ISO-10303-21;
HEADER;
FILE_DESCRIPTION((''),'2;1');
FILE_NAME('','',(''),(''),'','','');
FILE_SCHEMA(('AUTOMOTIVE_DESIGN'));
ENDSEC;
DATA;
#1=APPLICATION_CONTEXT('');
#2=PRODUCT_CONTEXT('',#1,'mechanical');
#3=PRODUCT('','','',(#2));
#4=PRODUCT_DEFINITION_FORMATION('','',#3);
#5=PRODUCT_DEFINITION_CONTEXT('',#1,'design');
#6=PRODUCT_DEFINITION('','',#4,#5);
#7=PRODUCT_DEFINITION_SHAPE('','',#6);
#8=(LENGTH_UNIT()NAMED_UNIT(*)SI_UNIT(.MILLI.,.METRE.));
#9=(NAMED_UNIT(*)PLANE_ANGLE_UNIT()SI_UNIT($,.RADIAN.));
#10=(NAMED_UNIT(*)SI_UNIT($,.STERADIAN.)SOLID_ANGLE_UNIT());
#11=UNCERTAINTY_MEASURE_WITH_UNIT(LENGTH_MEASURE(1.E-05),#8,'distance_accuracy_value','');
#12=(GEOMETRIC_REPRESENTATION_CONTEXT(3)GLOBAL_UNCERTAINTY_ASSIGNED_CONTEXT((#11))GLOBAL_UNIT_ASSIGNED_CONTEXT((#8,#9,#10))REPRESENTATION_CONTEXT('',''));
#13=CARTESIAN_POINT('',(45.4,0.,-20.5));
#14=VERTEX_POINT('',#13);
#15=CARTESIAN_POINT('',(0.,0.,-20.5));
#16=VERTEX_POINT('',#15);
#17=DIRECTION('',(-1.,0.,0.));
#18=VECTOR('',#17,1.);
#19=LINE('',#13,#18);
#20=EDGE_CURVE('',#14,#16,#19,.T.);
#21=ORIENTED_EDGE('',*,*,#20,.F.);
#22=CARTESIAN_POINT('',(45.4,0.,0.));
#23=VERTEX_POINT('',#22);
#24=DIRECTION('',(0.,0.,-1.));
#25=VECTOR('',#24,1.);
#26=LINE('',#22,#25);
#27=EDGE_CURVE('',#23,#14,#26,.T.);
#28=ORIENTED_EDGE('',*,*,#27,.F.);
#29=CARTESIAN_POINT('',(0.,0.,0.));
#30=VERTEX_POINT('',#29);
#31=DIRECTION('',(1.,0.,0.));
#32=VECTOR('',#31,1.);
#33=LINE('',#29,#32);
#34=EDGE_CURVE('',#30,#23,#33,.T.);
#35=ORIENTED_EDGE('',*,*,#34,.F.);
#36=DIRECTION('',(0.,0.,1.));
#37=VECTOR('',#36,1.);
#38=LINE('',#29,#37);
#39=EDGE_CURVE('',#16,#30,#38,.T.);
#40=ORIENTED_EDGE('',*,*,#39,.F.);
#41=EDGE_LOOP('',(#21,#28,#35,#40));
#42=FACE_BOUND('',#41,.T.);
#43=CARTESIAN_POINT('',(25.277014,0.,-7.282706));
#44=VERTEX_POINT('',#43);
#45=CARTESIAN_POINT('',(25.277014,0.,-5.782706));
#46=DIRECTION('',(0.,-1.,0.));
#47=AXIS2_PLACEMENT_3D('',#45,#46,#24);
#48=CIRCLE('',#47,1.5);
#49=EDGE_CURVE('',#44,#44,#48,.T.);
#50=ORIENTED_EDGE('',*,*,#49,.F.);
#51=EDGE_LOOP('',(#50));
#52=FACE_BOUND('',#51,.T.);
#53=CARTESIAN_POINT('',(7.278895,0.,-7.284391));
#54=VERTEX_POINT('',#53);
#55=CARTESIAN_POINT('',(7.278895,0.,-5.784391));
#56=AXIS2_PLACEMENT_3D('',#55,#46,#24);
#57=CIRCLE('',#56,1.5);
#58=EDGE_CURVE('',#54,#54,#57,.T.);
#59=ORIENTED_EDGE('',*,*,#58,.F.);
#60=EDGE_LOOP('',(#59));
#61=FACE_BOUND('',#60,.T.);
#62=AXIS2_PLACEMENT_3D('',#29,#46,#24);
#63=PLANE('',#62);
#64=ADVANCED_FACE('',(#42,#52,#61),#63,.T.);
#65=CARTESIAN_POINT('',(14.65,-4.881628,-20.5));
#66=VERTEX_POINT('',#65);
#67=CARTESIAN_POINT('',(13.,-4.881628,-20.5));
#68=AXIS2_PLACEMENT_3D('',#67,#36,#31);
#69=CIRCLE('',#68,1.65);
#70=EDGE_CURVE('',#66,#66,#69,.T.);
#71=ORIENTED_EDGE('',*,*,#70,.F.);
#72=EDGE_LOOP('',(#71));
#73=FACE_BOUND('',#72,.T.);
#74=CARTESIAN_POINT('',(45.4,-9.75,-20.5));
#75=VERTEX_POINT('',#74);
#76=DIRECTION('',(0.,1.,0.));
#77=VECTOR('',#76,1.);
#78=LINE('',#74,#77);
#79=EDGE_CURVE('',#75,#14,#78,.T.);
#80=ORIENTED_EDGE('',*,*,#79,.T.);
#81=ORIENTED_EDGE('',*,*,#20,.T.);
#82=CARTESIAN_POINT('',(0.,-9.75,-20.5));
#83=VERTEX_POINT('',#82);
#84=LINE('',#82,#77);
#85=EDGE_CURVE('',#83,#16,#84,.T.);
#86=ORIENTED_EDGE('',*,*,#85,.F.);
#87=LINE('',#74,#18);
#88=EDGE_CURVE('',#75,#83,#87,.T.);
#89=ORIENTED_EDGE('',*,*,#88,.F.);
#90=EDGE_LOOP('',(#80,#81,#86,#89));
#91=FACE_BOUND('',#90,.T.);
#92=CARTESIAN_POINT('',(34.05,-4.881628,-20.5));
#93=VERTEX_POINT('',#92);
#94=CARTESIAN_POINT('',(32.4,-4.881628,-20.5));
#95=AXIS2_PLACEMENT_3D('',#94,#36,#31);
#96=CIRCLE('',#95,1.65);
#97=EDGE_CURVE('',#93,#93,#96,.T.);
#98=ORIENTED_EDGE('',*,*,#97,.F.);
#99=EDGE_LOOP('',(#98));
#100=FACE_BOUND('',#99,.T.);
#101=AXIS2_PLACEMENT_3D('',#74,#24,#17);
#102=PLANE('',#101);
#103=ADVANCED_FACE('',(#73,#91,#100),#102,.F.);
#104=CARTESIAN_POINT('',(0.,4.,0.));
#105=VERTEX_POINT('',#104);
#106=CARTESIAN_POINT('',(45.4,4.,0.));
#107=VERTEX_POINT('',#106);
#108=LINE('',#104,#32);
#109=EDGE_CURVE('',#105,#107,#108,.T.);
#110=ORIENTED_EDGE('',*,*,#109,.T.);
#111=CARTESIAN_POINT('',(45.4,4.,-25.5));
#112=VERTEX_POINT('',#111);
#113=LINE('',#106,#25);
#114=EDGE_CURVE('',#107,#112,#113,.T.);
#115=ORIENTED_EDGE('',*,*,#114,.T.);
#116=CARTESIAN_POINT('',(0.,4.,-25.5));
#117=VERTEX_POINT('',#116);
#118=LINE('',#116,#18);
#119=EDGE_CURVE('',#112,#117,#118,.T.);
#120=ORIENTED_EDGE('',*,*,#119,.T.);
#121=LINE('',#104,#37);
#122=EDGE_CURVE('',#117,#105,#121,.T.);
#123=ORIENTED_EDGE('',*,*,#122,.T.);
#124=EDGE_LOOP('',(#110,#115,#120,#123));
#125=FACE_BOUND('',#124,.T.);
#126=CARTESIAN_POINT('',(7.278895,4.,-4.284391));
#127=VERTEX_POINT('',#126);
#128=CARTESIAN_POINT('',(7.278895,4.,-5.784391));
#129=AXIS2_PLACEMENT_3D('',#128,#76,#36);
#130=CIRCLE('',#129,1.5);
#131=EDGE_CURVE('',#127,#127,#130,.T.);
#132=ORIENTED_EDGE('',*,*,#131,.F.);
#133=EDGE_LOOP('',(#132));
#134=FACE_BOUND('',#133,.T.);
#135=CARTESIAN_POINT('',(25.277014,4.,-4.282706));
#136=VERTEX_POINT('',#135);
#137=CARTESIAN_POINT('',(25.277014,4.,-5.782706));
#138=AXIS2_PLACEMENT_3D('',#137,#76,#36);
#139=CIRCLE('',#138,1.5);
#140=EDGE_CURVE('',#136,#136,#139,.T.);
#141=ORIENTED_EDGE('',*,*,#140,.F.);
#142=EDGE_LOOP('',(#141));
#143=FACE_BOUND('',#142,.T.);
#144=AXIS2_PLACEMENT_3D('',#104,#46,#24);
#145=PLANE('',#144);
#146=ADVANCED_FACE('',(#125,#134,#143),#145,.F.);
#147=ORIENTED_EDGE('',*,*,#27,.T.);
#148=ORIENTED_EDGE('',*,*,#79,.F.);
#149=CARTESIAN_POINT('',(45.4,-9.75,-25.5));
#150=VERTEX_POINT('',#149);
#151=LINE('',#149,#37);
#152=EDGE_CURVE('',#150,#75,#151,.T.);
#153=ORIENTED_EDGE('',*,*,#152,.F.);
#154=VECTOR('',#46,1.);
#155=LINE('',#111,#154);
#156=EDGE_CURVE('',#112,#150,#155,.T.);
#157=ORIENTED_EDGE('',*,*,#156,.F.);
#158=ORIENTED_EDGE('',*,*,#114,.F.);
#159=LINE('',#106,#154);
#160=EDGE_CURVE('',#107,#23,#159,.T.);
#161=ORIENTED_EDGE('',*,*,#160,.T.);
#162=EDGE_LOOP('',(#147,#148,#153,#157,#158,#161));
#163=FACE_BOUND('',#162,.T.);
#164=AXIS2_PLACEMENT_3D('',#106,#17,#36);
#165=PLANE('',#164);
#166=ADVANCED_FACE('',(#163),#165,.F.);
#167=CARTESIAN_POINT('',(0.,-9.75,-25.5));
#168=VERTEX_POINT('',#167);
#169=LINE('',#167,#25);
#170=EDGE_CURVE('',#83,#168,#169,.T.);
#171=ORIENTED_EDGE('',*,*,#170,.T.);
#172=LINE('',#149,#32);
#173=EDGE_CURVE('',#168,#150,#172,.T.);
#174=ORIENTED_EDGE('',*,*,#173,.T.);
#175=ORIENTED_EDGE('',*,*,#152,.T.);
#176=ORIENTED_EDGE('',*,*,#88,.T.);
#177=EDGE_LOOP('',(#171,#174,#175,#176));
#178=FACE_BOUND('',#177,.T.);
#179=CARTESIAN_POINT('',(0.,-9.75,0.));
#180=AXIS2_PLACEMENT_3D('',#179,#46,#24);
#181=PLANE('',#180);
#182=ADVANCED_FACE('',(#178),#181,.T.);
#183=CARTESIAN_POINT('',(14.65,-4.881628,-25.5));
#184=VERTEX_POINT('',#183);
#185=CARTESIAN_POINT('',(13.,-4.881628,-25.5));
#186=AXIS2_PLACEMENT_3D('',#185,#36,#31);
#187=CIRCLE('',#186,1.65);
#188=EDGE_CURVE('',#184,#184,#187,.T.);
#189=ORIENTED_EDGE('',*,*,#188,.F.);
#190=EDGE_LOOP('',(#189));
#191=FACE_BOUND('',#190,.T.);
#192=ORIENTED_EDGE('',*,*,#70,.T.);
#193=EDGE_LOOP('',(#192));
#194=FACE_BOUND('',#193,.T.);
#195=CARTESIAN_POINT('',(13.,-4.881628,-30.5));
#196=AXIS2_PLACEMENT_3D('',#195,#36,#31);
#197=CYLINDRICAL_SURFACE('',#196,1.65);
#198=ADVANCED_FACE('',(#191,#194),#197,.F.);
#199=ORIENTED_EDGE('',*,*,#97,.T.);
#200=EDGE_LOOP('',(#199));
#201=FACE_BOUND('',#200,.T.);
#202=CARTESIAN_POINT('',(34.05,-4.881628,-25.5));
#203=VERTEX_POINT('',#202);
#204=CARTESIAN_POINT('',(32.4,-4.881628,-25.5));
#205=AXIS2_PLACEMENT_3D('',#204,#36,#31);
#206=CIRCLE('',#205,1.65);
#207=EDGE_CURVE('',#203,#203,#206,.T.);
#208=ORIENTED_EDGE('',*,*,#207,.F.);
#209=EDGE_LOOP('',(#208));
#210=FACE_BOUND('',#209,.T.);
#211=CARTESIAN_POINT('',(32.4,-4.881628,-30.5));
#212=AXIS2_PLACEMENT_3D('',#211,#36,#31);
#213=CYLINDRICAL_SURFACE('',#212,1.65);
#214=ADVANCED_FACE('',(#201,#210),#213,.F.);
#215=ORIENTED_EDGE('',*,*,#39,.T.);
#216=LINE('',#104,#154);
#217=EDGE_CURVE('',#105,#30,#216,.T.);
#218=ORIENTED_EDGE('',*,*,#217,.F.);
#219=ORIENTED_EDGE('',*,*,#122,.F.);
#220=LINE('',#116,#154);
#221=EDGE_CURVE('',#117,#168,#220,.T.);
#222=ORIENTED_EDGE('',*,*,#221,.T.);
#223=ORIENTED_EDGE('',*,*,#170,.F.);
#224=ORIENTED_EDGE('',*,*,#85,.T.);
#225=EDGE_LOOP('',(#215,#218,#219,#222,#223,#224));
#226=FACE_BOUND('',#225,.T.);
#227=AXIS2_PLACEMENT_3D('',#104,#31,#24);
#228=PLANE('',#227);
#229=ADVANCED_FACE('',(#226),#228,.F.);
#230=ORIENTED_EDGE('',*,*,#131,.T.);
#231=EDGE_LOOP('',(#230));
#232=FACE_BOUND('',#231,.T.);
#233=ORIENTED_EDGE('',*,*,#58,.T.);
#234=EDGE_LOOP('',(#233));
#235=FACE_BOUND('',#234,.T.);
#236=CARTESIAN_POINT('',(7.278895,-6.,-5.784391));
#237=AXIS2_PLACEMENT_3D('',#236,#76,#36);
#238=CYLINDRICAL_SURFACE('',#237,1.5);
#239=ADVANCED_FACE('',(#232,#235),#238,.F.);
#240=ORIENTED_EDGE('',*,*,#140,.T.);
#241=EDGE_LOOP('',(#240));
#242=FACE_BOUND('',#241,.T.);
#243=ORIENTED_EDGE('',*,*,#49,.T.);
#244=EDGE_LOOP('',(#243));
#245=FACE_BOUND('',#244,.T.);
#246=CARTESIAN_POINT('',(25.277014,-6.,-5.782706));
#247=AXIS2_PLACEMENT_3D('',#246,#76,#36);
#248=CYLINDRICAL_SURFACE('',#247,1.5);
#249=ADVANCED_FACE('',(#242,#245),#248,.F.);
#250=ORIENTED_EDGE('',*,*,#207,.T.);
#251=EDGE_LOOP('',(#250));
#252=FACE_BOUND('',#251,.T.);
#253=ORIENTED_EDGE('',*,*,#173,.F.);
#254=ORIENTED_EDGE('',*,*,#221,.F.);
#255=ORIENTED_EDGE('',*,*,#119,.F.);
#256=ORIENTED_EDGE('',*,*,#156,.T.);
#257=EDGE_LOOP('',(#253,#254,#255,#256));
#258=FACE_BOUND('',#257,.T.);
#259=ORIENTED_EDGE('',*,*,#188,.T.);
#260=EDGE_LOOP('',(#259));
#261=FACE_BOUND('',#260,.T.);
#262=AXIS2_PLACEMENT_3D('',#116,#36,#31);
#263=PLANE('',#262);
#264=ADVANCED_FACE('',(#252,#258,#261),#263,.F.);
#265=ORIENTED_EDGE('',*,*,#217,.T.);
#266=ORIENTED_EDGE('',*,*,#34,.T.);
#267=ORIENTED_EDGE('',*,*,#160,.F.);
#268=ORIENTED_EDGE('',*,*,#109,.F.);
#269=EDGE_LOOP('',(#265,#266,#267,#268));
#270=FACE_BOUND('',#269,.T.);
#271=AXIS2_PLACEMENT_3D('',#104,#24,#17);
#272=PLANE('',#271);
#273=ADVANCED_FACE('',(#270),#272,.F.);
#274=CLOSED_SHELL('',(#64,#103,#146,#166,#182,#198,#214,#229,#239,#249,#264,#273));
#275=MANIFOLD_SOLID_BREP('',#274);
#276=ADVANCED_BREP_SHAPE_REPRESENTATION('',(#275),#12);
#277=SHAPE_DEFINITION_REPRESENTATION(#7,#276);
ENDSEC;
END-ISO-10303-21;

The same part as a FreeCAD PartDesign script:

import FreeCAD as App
import Part
import Sketcher

V = App.Vector


def add_polygon(sketch, points):
    """Adds a closed chain of lines whose ends are joined by coincident constraints."""
    first, n = sketch.GeometryCount, len(points)
    for a, b in zip(points, points[1:] + points[:1]):
        sketch.addGeometry(Part.LineSegment(App.Vector(*a, 0), App.Vector(*b, 0)), False)
    for i in range(n):
        sketch.addConstraint(Sketcher.Constraint("Coincident", first + i, 2, first + (i + 1) % n, 1))

doc = App.newDocument("Part")
body = doc.addObject("PartDesign::Body", "Body")

# Sketch on XZ plane
sketch1 = body.newObject("Sketcher::SketchObject", "Sketch")
sketch1.AttachmentSupport = (doc.getObject("XZ_Plane"), [""])
sketch1.MapMode = "FlatFace"
add_polygon(sketch1, [(0, -25.5), (0, 0), (45.4, 0), (45.4, -25.5)])  # lines 0-3
sketch1.addConstraint([
    Sketcher.Constraint("Vertical", 0),
    Sketcher.Constraint("Horizontal", 1),
    Sketcher.Constraint("Vertical", 2),
    Sketcher.Constraint("Horizontal", 3),
    Sketcher.Constraint("Coincident", 0, 2, -1, 1),
    Sketcher.Constraint("DistanceX", 1, 1, 1, 2, 45.4),
    Sketcher.Constraint("DistanceY", 0, 1, 0, 2, 25.5),
])
pad1 = body.newObject("PartDesign::Pad", "Pad")
pad1.Profile = sketch1
pad1.Length = 4
pad1.Reversed = True

# Sketch on XZ plane
sketch2 = body.newObject("Sketcher::SketchObject", "Sketch001")
sketch2.AttachmentSupport = (doc.getObject("XZ_Plane"), [""])
sketch2.MapMode = "FlatFace"
add_polygon(sketch2, [(0, -20.5), (0, -25.5), (45.4, -25.5), (45.4, -20.5)])  # lines 0-3
sketch2.addConstraint([
    Sketcher.Constraint("Vertical", 0),
    Sketcher.Constraint("Horizontal", 1),
    Sketcher.Constraint("Vertical", 2),
    Sketcher.Constraint("Horizontal", 3),
    Sketcher.Constraint("PointOnObject", 0, 2, -2),
    Sketcher.Constraint("DistanceY", 0, 2, 0, 1, 5.0),
    Sketcher.Constraint("DistanceX", 1, 1, 1, 2, 45.4),
    Sketcher.Constraint("DistanceY", 0, 2, -1, 1, 25.5),
])
pad2 = body.newObject("PartDesign::Pad", "Pad001")
pad2.Profile = sketch2
pad2.Length = 9.75

# Sketch on XZ plane
sketch3 = body.newObject("Sketcher::SketchObject", "Sketch002")
sketch3.AttachmentSupport = (doc.getObject("XZ_Plane"), [""])
sketch3.MapMode = "FlatFace"
sketch3.AttachmentOffset = App.Placement(V(0, 0, -4), App.Rotation())
sketch3.addGeometry([
    Part.Circle(V(7.278895, -5.784391, 0), V(0, 0, 1), 1.5),
    Part.Circle(V(25.277014, -5.782706, 0), V(0, 0, 1), 1.5),
], False)
sketch3.addConstraint([
    Sketcher.Constraint("Equal", 0, 1),
    Sketcher.Constraint("Diameter", 0, 3.0),
    Sketcher.Constraint("DistanceY", 0, 3, -1, 1, 5.784391),
    Sketcher.Constraint("DistanceX", 0, 3, 1, 3, 17.998119),
    Sketcher.Constraint("DistanceX", -1, 1, 0, 3, 7.278895),
    Sketcher.Constraint("DistanceY", 1, 3, -1, 1, 5.782706),
])
pocket1 = body.newObject("PartDesign::Pocket", "Pocket")
pocket1.Profile = sketch3
pocket1.Length = 10
pocket1.Reversed = True

# Sketch on XY plane
sketch4 = body.newObject("Sketcher::SketchObject", "Sketch003")
sketch4.AttachmentSupport = (doc.getObject("XY_Plane"), [""])
sketch4.MapMode = "FlatFace"
sketch4.AttachmentOffset = App.Placement(V(0, 0, -20.5), App.Rotation())
sketch4.addGeometry([
    Part.Circle(V(32.4, -4.881628, 0), V(0, 0, 1), 1.65),
    Part.Circle(V(13, -4.881628, 0), V(0, 0, 1), 1.65),
], False)
sketch4.addConstraint([
    Sketcher.Constraint("Equal", 0, 1),
    Sketcher.Constraint("Horizontal", 0, 3, 1, 3),
    Sketcher.Constraint("Diameter", 0, 3.3),
    Sketcher.Constraint("DistanceX", -1, 1, 1, 3, 13.0),
    Sketcher.Constraint("DistanceX", -1, 1, 0, 3, 32.4),
    Sketcher.Constraint("DistanceY", 0, 3, -1, 1, 4.881628),
])
pocket2 = body.newObject("PartDesign::Pocket", "Pocket001")
pocket2.Profile = sketch4
pocket2.Length = 10

doc.recompute()
